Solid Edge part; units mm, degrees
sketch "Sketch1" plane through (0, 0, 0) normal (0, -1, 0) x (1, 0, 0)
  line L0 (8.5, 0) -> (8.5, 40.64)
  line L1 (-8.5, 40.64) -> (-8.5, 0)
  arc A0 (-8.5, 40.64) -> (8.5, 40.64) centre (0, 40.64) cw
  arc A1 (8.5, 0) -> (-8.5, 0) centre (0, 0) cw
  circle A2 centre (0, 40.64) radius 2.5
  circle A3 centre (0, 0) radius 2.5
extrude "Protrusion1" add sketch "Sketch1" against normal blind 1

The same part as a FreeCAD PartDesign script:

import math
import FreeCAD as App
import Part
import Sketcher
from FreeCAD import Vector

doc = App.newDocument("Part")
params = doc.addObject("Spreadsheet::Sheet", "Params")
for row, (alias, value) in enumerate([
    ("sketch1_diameter", "5 mm"),
    ("sketch1_radius", "8.5 mm"),
    ("sketch1_height", "40.64 mm"),
    ("pad1_length", "1 mm"),
], start=1):
    params.set(f"A{row}", alias)
    params.set(f"B{row}", "=" + value)
    params.setAlias(f"B{row}", alias)

body = doc.addObject("PartDesign::Body", "Body")

# Sketch on XZ plane
sketch1 = doc.addObject("Sketcher::SketchObject", "Sketch")
body.addObject(sketch1)
sketch1.AttachmentSupport = (doc.XZ_Plane, [""])
sketch1.MapMode = "FlatFace"
sketch1.addGeometry([
    Part.ArcOfCircle(Part.Circle(Vector(0, 0, 0), Vector(0, 0, 1), 8.5), math.radians(180), math.radians(360)),  # 0
    Part.LineSegment(Vector(8.5, 0, 0), Vector(8.5, 40.6, 0)),  # 1
    Part.ArcOfCircle(Part.Circle(Vector(0, 40.6, 0), Vector(0, 0, 1), 8.5), math.radians(0), math.radians(180)),  # 2
    Part.LineSegment(Vector(-8.5, 40.6, 0), Vector(-8.5, 0, 0)),  # 3
    Part.Circle(Vector(0, 0, 0), Vector(0, 0, 1), 2.5),  # 4
    Part.Circle(Vector(0, 40.6, 0), Vector(0, 0, 1), 2.5),  # 5
], False)
sketch1.addConstraint([
    Sketcher.Constraint("Tangent", 0, 2, 1, 1),
    Sketcher.Constraint("Tangent", 1, 2, 2, 1),
    Sketcher.Constraint("Tangent", 2, 2, 3, 1),
    Sketcher.Constraint("Tangent", 3, 2, 0, 1),
    Sketcher.Constraint("Vertical", 1),
    Sketcher.Constraint("Vertical", 3),
    Sketcher.Constraint("Coincident", 0, 3, -1, 1),
    Sketcher.Constraint("Coincident", 4, 3, -1, 1),
    Sketcher.Constraint("Coincident", 5, 3, 2, 3),
    Sketcher.Constraint("Equal", 4, 5),
    Sketcher.Constraint("Diameter", 4, 5.0),
    Sketcher.Constraint("Radius", 0, 8.5),
    Sketcher.Constraint("DistanceY", 1, 1, 1, 2, 40.64),
])
sketch1.setExpression("Constraints[10]", "Params.sketch1_diameter")
sketch1.setExpression("Constraints[11]", "Params.sketch1_radius")
sketch1.setExpression("Constraints[12]", "Params.sketch1_height")
pad1 = doc.addObject("PartDesign::Pad", "Pad")
body.addObject(pad1)
pad1.Profile = sketch1
pad1.setExpression("Length", "Params.pad1_length")
pad1.Reversed = True

doc.recompute()
